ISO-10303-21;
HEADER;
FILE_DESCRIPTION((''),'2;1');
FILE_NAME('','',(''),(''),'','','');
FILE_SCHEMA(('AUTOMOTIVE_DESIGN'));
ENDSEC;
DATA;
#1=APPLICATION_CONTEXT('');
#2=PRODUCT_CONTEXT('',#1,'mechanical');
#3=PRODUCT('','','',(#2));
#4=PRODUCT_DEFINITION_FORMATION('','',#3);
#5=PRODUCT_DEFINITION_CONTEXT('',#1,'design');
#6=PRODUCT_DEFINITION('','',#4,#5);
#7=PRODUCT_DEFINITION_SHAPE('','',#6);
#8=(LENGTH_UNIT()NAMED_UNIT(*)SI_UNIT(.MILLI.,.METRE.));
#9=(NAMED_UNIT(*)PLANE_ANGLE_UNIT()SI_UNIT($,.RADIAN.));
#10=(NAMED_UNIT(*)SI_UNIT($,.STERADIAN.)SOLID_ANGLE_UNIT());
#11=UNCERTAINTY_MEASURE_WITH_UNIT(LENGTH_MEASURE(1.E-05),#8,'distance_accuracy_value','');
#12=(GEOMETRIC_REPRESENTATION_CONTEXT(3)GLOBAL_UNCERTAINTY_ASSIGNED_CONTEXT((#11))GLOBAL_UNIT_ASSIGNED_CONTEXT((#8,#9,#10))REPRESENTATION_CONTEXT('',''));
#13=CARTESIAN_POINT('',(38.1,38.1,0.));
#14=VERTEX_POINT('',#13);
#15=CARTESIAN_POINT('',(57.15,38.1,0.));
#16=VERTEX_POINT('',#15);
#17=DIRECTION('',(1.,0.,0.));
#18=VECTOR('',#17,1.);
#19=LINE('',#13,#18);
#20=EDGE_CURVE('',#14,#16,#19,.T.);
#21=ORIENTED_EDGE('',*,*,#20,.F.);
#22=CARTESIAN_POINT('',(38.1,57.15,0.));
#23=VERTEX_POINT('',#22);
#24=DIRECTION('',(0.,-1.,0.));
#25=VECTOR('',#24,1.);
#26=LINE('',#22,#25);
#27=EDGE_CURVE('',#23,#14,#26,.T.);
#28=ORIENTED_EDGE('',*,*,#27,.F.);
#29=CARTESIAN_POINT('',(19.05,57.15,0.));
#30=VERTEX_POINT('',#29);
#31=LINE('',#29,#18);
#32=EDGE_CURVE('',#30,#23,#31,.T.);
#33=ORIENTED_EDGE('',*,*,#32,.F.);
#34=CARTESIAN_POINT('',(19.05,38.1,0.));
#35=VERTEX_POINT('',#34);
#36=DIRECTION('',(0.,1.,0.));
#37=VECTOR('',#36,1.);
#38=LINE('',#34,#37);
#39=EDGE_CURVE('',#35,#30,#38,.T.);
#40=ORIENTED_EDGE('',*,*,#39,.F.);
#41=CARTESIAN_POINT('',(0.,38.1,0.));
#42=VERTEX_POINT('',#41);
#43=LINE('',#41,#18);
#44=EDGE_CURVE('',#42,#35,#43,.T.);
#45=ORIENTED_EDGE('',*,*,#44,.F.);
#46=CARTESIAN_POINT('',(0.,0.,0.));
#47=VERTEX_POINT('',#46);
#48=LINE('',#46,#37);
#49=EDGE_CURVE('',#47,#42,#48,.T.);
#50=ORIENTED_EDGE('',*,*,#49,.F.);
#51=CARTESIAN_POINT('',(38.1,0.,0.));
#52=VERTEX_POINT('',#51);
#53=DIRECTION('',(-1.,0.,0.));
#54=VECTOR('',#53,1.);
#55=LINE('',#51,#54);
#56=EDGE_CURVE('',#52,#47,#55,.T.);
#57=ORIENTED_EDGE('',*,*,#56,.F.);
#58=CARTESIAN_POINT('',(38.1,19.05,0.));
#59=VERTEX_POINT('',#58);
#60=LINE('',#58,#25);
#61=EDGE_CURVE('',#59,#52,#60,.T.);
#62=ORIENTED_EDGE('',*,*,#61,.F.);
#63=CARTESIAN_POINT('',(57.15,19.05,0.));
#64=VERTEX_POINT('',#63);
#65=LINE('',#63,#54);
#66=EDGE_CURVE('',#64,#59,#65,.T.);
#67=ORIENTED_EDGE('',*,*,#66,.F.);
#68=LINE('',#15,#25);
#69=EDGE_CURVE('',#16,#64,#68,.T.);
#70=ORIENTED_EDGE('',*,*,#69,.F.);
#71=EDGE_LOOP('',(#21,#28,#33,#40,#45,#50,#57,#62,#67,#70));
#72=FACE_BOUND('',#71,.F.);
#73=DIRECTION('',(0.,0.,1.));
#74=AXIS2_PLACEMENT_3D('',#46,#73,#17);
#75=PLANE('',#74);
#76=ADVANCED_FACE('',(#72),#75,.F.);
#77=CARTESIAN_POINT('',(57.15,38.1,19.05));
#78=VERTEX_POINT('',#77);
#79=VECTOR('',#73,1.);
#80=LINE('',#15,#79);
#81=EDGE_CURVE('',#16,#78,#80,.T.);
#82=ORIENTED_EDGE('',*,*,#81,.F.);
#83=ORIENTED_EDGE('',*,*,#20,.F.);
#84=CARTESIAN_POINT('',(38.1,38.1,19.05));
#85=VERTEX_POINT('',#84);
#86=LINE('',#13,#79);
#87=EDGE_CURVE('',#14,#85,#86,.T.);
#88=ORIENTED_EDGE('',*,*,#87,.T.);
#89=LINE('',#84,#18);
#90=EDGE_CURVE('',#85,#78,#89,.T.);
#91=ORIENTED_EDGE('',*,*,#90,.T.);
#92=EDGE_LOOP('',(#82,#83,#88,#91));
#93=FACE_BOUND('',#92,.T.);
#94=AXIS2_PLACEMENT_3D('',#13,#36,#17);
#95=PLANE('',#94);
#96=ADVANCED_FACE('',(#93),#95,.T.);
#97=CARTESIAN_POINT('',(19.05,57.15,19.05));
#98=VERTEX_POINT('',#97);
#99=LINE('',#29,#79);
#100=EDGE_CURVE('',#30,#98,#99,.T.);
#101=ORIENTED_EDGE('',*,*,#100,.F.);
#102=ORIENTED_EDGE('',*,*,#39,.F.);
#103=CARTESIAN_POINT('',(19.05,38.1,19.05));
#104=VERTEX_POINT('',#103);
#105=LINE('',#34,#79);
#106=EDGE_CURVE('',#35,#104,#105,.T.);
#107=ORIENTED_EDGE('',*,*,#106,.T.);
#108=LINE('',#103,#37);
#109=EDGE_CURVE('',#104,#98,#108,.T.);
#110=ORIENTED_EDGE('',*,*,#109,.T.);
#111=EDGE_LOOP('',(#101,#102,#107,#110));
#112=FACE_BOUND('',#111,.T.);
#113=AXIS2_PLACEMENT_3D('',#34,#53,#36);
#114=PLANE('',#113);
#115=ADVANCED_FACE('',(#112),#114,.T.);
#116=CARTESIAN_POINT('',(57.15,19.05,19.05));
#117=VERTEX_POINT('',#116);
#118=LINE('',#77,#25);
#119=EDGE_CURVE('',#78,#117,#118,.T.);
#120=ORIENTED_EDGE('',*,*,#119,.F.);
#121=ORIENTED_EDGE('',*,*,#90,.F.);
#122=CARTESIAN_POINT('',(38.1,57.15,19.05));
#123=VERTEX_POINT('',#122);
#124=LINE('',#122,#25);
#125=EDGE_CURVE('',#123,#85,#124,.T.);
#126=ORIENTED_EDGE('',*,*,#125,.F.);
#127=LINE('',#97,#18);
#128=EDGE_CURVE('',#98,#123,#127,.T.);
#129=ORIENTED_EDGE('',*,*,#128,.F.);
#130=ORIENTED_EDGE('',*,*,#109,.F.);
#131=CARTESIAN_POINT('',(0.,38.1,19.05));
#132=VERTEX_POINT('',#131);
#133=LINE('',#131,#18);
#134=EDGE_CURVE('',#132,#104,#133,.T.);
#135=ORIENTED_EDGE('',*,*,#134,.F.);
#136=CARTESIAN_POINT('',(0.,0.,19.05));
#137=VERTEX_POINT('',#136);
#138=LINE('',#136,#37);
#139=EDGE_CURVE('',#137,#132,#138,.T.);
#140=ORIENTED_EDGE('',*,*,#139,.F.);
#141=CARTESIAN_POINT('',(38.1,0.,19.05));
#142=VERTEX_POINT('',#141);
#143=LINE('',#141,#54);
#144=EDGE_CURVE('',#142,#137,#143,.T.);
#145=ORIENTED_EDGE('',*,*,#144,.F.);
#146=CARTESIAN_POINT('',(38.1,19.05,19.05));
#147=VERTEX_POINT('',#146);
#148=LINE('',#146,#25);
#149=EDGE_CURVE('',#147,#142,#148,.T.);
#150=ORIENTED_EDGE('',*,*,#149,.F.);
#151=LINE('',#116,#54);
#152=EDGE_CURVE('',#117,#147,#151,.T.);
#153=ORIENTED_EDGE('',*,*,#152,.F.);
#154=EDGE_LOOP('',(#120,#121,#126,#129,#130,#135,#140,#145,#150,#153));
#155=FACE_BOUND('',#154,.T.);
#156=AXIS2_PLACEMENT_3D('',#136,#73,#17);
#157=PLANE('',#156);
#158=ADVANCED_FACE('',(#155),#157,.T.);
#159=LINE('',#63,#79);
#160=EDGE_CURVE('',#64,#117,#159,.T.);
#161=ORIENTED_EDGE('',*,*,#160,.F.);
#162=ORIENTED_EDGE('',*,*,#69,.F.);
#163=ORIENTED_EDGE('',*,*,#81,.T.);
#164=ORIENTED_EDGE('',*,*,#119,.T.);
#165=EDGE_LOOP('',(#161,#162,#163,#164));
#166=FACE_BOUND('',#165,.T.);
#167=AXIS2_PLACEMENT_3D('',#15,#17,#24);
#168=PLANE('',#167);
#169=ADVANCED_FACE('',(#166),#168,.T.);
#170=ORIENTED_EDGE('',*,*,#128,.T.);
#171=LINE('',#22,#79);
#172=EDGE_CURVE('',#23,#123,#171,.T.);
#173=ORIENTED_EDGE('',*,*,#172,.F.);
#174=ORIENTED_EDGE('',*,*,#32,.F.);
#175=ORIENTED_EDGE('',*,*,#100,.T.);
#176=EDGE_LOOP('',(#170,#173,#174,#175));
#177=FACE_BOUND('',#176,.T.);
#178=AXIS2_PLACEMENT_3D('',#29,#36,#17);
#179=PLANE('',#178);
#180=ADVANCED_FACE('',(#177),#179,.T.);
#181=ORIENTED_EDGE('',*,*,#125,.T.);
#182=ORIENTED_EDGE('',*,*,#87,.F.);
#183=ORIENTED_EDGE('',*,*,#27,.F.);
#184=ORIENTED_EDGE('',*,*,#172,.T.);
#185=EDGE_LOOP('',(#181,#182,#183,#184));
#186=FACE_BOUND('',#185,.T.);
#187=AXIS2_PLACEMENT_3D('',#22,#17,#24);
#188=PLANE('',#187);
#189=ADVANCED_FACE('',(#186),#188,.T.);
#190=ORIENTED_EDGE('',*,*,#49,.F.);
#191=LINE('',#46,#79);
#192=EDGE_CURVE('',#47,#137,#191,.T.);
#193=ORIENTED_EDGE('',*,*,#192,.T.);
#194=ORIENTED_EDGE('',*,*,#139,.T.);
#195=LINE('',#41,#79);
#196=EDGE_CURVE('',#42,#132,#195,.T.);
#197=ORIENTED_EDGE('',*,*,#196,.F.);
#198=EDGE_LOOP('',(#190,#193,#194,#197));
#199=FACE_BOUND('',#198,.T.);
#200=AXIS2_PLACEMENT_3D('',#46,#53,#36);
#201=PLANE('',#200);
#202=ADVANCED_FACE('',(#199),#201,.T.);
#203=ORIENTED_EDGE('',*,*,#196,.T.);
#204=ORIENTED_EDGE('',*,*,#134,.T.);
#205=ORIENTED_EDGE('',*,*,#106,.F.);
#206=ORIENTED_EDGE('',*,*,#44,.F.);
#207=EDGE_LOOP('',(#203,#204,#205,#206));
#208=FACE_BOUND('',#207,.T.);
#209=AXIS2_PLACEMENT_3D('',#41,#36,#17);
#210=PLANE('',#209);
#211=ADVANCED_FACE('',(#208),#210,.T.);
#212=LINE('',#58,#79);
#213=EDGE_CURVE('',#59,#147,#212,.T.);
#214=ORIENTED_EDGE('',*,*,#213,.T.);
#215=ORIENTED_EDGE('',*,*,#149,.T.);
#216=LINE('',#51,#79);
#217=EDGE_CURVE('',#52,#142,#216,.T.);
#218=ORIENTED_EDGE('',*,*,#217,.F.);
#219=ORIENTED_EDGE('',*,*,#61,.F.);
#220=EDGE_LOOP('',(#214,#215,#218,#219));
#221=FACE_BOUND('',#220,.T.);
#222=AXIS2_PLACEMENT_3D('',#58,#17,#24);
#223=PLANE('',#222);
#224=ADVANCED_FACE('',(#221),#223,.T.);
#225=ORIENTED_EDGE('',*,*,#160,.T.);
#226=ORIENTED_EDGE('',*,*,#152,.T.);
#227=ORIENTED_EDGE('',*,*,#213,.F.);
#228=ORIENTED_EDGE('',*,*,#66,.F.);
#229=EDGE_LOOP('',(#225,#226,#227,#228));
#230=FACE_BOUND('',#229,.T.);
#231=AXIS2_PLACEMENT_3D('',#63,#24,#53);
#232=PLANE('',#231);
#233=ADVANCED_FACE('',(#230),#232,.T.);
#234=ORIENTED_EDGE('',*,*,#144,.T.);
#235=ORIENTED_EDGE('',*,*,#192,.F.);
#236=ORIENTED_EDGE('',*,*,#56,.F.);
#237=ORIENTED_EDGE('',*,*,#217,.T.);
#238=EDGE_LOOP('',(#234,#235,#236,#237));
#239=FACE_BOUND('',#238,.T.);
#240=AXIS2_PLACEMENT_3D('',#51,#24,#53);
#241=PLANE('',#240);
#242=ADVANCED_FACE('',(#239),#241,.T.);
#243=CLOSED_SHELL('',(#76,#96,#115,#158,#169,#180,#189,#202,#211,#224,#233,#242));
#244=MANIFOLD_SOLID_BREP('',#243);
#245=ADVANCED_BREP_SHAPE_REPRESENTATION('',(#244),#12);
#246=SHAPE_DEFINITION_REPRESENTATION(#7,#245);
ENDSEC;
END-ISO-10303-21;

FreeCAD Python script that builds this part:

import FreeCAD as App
import Part
import Sketcher
Q = App.Units.Quantity

doc = App.newDocument("Part")
params = doc.addObject("Spreadsheet::Sheet", "Params")
for row, (alias, value) in enumerate([
    ("sketch1_width", "1.5 in"),
    ("pad1_length", "0.75 in"),
], start=1):
    params.set(f"A{row}", alias)
    params.set(f"B{row}", "=" + value)
    params.setAlias(f"B{row}", alias)

body = doc.addObject("PartDesign::Body", "Body")

# Sketch on XY plane
sketch1 = doc.addObject("Sketcher::SketchObject", "Sketch")
body.addObject(sketch1)
sketch1.AttachmentSupport = (doc.XY_Plane, [""])
sketch1.MapMode = "FlatFace"
sketch1.addGeometry([
    Part.LineSegment(App.Vector(0, 38, 0), App.Vector(0, 0, 0)),  # 0
    Part.LineSegment(App.Vector(0, 0, 0), App.Vector(38, 0, 0)),  # 1
    Part.LineSegment(App.Vector(38, 0, 0), App.Vector(38, 19, 0)),  # 2
    Part.LineSegment(App.Vector(38, 19, 0), App.Vector(57, 19, 0)),  # 3
    Part.LineSegment(App.Vector(57, 19, 0), App.Vector(57, 38, 0)),  # 4
    Part.LineSegment(App.Vector(57, 38, 0), App.Vector(38, 38, 0)),  # 5
    Part.LineSegment(App.Vector(38, 38, 0), App.Vector(38, 57, 0)),  # 6
    Part.LineSegment(App.Vector(38, 57, 0), App.Vector(19, 57, 0)),  # 7
    Part.LineSegment(App.Vector(19, 57, 0), App.Vector(19, 38, 0)),  # 8
    Part.LineSegment(App.Vector(19, 38, 0), App.Vector(0, 38, 0)),  # 9
], False)
sketch1.addConstraint([
    Sketcher.Constraint("Coincident", 0, 2, 1, 1),
    Sketcher.Constraint("Coincident", 1, 2, 2, 1),
    Sketcher.Constraint("Coincident", 2, 2, 3, 1),
    Sketcher.Constraint("Coincident", 3, 2, 4, 1),
    Sketcher.Constraint("Coincident", 4, 2, 5, 1),
    Sketcher.Constraint("Coincident", 5, 2, 6, 1),
    Sketcher.Constraint("Coincident", 6, 2, 7, 1),
    Sketcher.Constraint("Coincident", 7, 2, 8, 1),
    Sketcher.Constraint("Coincident", 8, 2, 9, 1),
    Sketcher.Constraint("Coincident", 9, 2, 0, 1),
    Sketcher.Constraint("Vertical", 0),
    Sketcher.Constraint("Horizontal", 1),
    Sketcher.Constraint("Vertical", 2),
    Sketcher.Constraint("Horizontal", 3),
    Sketcher.Constraint("Vertical", 4),
    Sketcher.Constraint("Horizontal", 5),
    Sketcher.Constraint("Vertical", 6),
    Sketcher.Constraint("Horizontal", 7),
    Sketcher.Constraint("Vertical", 8),
    Sketcher.Constraint("Horizontal", 9),
    Sketcher.Constraint("Coincident", 0, 2, -1, 1),
    Sketcher.Constraint("Horizontal", 5, 2, 8, 2),
    Sketcher.Constraint("Vertical", 2, 2, 5, 2),
    Sketcher.Constraint("Equal", 5, 7),
    Sketcher.Constraint("Equal", 7, 9),
    Sketcher.Constraint("Equal", 1, 0),
    Sketcher.Constraint("Equal", 9, 2),
    Sketcher.Constraint("Equal", 4, 6),
    Sketcher.Constraint("DistanceX", 1, 1, 1, 2, Q("1.5 in")),
])
sketch1.setExpression("Constraints[28]", "Params.sketch1_width")
pad1 = doc.addObject("PartDesign::Pad", "Pad")
body.addObject(pad1)
pad1.Profile = sketch1
pad1.setExpression("Length", "Params.pad1_length")

doc.recompute()
